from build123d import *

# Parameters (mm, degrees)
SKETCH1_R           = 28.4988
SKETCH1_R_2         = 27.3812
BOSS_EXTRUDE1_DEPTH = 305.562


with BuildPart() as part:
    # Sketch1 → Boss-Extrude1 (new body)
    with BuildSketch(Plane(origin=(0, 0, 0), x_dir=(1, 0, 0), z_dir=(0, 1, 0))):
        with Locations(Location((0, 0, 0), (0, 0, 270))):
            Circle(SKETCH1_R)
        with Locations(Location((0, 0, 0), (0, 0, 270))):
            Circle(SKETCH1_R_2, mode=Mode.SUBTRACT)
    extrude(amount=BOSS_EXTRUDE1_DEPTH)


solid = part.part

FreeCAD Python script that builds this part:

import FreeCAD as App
import Part
import Sketcher
Q = App.Units.Quantity

doc = App.newDocument("Part")
body = doc.addObject("PartDesign::Body", "Body")

# Sketch on XZ plane
sketch1 = body.newObject("Sketcher::SketchObject", "Sketch")
sketch1.AttachmentSupport = (doc.getObject("XZ_Plane"), [""])
sketch1.MapMode = "FlatFace"
sketch1.addGeometry(Part.Circle(App.Vector(0, 0, 0), App.Vector(0, 0, 1), 28), False)
sketch1.addGeometry(Part.Circle(App.Vector(0, 0, 0), App.Vector(0, 0, 1), 27), False)
sketch1.addConstraint(Sketcher.Constraint("Coincident", 0, 3, -1, 1))
sketch1.addConstraint(Sketcher.Constraint("Coincident", 1, 3, -1, 1))
sketch1.addConstraint(Sketcher.Constraint("Diameter", 0, Q("2.244 in")))
sketch1.addConstraint(Sketcher.Constraint("Diameter", 1, Q("2.156 in")))
pad1 = body.newObject("PartDesign::Pad", "Pad")
pad1.Profile = sketch1
pad1.Length = Q("12.03 in")
pad1.Reversed = True

doc.recompute()
